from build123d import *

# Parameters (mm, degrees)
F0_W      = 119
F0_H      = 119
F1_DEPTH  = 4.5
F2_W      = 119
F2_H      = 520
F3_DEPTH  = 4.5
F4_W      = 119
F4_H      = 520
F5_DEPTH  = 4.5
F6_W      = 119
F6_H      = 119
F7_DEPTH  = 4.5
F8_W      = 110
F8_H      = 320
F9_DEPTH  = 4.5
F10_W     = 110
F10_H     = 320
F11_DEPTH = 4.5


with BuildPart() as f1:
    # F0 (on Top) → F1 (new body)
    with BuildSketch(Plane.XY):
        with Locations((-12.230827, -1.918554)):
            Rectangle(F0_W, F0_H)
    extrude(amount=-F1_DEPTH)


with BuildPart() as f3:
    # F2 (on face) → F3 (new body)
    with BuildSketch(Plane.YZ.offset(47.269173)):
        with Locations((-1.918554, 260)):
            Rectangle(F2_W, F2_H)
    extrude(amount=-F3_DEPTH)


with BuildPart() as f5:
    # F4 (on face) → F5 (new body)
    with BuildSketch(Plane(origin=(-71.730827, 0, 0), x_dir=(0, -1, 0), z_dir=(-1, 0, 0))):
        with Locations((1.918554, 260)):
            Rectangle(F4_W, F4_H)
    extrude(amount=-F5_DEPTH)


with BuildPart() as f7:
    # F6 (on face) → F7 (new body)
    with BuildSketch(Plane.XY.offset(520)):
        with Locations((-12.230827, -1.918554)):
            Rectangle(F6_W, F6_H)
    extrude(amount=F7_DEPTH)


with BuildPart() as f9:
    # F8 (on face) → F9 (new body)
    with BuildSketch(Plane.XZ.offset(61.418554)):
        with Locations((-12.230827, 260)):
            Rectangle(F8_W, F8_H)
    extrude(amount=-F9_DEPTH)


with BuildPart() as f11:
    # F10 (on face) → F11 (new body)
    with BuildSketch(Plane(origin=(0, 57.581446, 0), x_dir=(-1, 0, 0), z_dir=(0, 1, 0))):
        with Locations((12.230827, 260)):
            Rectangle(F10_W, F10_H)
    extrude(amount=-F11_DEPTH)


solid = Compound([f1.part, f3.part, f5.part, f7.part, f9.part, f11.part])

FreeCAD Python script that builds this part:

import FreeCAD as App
import Part
import Sketcher

V = App.Vector
Q = App.Units.Quantity


def add_polygon(sketch, points):
    """Adds a closed chain of lines whose ends are joined by coincident constraints."""
    first, n = sketch.GeometryCount, len(points)
    for a, b in zip(points, points[1:] + points[:1]):
        sketch.addGeometry(Part.LineSegment(App.Vector(*a, 0), App.Vector(*b, 0)), False)
    for i in range(n):
        sketch.addConstraint(Sketcher.Constraint("Coincident", first + i, 2, first + (i + 1) % n, 1))

doc = App.newDocument("Part")
body = doc.addObject("PartDesign::Body", "Body")

# Sketch on XY plane
sketch1 = body.newObject("Sketcher::SketchObject", "Sketch")
sketch1.AttachmentSupport = (doc.getObject("XY_Plane"), [""])
sketch1.MapMode = "FlatFace"
add_polygon(sketch1, [(-72, 58), (-72, -61), (47, -61), (47, 58)])  # lines 0-3
sketch1.addConstraint([
    Sketcher.Constraint("Vertical", 0),
    Sketcher.Constraint("Horizontal", 1),
    Sketcher.Constraint("Vertical", 2),
    Sketcher.Constraint("Horizontal", 3),
    Sketcher.Constraint("Equal", 3, 0),
    Sketcher.Constraint("DistanceX", 1, 1, 1, 2, Q("119 mm")),
    Sketcher.Constraint("DistanceX", 0, 2, -1, 1, Q("71.730827 mm")),
    Sketcher.Constraint("DistanceY", 0, 2, -1, 1, Q("61.418554 mm")),
])
pad1 = body.newObject("PartDesign::Pad", "Pad")
pad1.Profile = sketch1
pad1.Length = 4.5
pad1.Reversed = True
body2 = doc.addObject("PartDesign::Body", "Body001")

# Sketch on YZ plane
sketch2 = body2.newObject("Sketcher::SketchObject", "Sketch001")
sketch2.AttachmentSupport = (doc.getObject("YZ_Plane001"), [""])
sketch2.MapMode = "FlatFace"
sketch2.AttachmentOffset = App.Placement(V(0, 0, 47.269173), App.Rotation())
add_polygon(sketch2, [(-61, 520), (-61, 0), (58, 0), (58, 520)])  # lines 0-3
sketch2.addConstraint([
    Sketcher.Constraint("Vertical", 0),
    Sketcher.Constraint("Horizontal", 1),
    Sketcher.Constraint("Vertical", 2),
    Sketcher.Constraint("Horizontal", 3),
    Sketcher.Constraint("PointOnObject", 0, 2, -1),
    Sketcher.Constraint("DistanceX", 1, 1, 1, 2, Q("119 mm")),
    Sketcher.Constraint("DistanceY", 0, 2, 0, 1, Q("520 mm")),
    Sketcher.Constraint("DistanceX", 0, 2, -1, 1, Q("61.418554 mm")),
])
pad2 = body2.newObject("PartDesign::Pad", "Pad001")
pad2.Profile = sketch2
pad2.Length = 4.5
pad2.Reversed = True
body3 = doc.addObject("PartDesign::Body", "Body002")

# Sketch on YZ plane
sketch3 = body3.newObject("Sketcher::SketchObject", "Sketch002")
sketch3.AttachmentSupport = (doc.getObject("YZ_Plane002"), [""])
sketch3.MapMode = "FlatFace"
sketch3.AttachmentOffset = App.Placement(V(0, 0, -71.730827), App.Rotation())
add_polygon(sketch3, [(58, 520), (58, 0), (-61, 0), (-61, 520)])  # lines 0-3
sketch3.addConstraint([
    Sketcher.Constraint("Vertical", 0),
    Sketcher.Constraint("Horizontal", 1),
    Sketcher.Constraint("Vertical", 2),
    Sketcher.Constraint("Horizontal", 3),
    Sketcher.Constraint("PointOnObject", 0, 2, -1),
    Sketcher.Constraint("DistanceX", 1, 2, 1, 1, Q("119 mm")),
    Sketcher.Constraint("DistanceY", 0, 2, 0, 1, Q("520 mm")),
    Sketcher.Constraint("DistanceX", -1, 1, 0, 2, Q("57.581446 mm")),
])
pad3 = body3.newObject("PartDesign::Pad", "Pad002")
pad3.Profile = sketch3
pad3.Length = 4.5
body4 = doc.addObject("PartDesign::Body", "Body003")

# Sketch on XY plane
sketch4 = body4.newObject("Sketcher::SketchObject", "Sketch003")
sketch4.AttachmentSupport = (doc.getObject("XY_Plane003"), [""])
sketch4.MapMode = "FlatFace"
sketch4.AttachmentOffset = App.Placement(V(0, 0, 520), App.Rotation())
add_polygon(sketch4, [(-72, 58), (-72, -61), (47, -61), (47, 58)])  # lines 0-3
sketch4.addConstraint([
    Sketcher.Constraint("Vertical", 0),
    Sketcher.Constraint("Horizontal", 1),
    Sketcher.Constraint("Vertical", 2),
    Sketcher.Constraint("Horizontal", 3),
    Sketcher.Constraint("Equal", 3, 0),
    Sketcher.Constraint("DistanceX", 1, 1, 1, 2, Q("119 mm")),
    Sketcher.Constraint("DistanceX", 0, 2, -1, 1, Q("71.730827 mm")),
    Sketcher.Constraint("DistanceY", 0, 2, -1, 1, Q("61.418554 mm")),
])
pad4 = body4.newObject("PartDesign::Pad", "Pad003")
pad4.Profile = sketch4
pad4.Length = 4.5
body5 = doc.addObject("PartDesign::Body", "Body004")

# Sketch on XZ plane
sketch5 = body5.newObject("Sketcher::SketchObject", "Sketch004")
sketch5.AttachmentSupport = (doc.getObject("XZ_Plane004"), [""])
sketch5.MapMode = "FlatFace"
sketch5.AttachmentOffset = App.Placement(V(0, 0, 61.418554), App.Rotation())
add_polygon(sketch5, [(-67, 420), (-67, 100), (43, 100), (43, 420)])  # lines 0-3
sketch5.addConstraint([
    Sketcher.Constraint("Vertical", 0),
    Sketcher.Constraint("Horizontal", 1),
    Sketcher.Constraint("Vertical", 2),
    Sketcher.Constraint("Horizontal", 3),
    Sketcher.Constraint("DistanceX", 1, 1, 1, 2, Q("110 mm")),
    Sketcher.Constraint("DistanceY", 0, 2, 0, 1, Q("320 mm")),
    Sketcher.Constraint("DistanceY", -1, 1, 0, 2, Q("100 mm")),
    Sketcher.Constraint("DistanceX", 0, 2, -1, 1, Q("67.230827 mm")),
])
pad5 = body5.newObject("PartDesign::Pad", "Pad004")
pad5.Profile = sketch5
pad5.Length = 4.5
pad5.Reversed = True
body6 = doc.addObject("PartDesign::Body", "Body005")

# Sketch on XZ plane
sketch6 = body6.newObject("Sketcher::SketchObject", "Sketch005")
sketch6.AttachmentSupport = (doc.getObject("XZ_Plane005"), [""])
sketch6.MapMode = "FlatFace"
sketch6.AttachmentOffset = App.Placement(V(0, 0, -57.581446), App.Rotation())
add_polygon(sketch6, [(43, 420), (43, 100), (-67, 100), (-67, 420)])  # lines 0-3
sketch6.addConstraint([
    Sketcher.Constraint("Vertical", 0),
    Sketcher.Constraint("Horizontal", 1),
    Sketcher.Constraint("Vertical", 2),
    Sketcher.Constraint("Horizontal", 3),
    Sketcher.Constraint("DistanceX", 1, 2, 1, 1, Q("110 mm")),
    Sketcher.Constraint("DistanceY", 0, 2, 0, 1, Q("320 mm")),
    Sketcher.Constraint("DistanceY", -1, 1, 0, 2, Q("100 mm")),
    Sketcher.Constraint("DistanceX", -1, 1, 0, 2, Q("42.769173 mm")),
])
pad6 = body6.newObject("PartDesign::Pad", "Pad005")
pad6.Profile = sketch6
pad6.Length = 4.5

doc.recompute()
